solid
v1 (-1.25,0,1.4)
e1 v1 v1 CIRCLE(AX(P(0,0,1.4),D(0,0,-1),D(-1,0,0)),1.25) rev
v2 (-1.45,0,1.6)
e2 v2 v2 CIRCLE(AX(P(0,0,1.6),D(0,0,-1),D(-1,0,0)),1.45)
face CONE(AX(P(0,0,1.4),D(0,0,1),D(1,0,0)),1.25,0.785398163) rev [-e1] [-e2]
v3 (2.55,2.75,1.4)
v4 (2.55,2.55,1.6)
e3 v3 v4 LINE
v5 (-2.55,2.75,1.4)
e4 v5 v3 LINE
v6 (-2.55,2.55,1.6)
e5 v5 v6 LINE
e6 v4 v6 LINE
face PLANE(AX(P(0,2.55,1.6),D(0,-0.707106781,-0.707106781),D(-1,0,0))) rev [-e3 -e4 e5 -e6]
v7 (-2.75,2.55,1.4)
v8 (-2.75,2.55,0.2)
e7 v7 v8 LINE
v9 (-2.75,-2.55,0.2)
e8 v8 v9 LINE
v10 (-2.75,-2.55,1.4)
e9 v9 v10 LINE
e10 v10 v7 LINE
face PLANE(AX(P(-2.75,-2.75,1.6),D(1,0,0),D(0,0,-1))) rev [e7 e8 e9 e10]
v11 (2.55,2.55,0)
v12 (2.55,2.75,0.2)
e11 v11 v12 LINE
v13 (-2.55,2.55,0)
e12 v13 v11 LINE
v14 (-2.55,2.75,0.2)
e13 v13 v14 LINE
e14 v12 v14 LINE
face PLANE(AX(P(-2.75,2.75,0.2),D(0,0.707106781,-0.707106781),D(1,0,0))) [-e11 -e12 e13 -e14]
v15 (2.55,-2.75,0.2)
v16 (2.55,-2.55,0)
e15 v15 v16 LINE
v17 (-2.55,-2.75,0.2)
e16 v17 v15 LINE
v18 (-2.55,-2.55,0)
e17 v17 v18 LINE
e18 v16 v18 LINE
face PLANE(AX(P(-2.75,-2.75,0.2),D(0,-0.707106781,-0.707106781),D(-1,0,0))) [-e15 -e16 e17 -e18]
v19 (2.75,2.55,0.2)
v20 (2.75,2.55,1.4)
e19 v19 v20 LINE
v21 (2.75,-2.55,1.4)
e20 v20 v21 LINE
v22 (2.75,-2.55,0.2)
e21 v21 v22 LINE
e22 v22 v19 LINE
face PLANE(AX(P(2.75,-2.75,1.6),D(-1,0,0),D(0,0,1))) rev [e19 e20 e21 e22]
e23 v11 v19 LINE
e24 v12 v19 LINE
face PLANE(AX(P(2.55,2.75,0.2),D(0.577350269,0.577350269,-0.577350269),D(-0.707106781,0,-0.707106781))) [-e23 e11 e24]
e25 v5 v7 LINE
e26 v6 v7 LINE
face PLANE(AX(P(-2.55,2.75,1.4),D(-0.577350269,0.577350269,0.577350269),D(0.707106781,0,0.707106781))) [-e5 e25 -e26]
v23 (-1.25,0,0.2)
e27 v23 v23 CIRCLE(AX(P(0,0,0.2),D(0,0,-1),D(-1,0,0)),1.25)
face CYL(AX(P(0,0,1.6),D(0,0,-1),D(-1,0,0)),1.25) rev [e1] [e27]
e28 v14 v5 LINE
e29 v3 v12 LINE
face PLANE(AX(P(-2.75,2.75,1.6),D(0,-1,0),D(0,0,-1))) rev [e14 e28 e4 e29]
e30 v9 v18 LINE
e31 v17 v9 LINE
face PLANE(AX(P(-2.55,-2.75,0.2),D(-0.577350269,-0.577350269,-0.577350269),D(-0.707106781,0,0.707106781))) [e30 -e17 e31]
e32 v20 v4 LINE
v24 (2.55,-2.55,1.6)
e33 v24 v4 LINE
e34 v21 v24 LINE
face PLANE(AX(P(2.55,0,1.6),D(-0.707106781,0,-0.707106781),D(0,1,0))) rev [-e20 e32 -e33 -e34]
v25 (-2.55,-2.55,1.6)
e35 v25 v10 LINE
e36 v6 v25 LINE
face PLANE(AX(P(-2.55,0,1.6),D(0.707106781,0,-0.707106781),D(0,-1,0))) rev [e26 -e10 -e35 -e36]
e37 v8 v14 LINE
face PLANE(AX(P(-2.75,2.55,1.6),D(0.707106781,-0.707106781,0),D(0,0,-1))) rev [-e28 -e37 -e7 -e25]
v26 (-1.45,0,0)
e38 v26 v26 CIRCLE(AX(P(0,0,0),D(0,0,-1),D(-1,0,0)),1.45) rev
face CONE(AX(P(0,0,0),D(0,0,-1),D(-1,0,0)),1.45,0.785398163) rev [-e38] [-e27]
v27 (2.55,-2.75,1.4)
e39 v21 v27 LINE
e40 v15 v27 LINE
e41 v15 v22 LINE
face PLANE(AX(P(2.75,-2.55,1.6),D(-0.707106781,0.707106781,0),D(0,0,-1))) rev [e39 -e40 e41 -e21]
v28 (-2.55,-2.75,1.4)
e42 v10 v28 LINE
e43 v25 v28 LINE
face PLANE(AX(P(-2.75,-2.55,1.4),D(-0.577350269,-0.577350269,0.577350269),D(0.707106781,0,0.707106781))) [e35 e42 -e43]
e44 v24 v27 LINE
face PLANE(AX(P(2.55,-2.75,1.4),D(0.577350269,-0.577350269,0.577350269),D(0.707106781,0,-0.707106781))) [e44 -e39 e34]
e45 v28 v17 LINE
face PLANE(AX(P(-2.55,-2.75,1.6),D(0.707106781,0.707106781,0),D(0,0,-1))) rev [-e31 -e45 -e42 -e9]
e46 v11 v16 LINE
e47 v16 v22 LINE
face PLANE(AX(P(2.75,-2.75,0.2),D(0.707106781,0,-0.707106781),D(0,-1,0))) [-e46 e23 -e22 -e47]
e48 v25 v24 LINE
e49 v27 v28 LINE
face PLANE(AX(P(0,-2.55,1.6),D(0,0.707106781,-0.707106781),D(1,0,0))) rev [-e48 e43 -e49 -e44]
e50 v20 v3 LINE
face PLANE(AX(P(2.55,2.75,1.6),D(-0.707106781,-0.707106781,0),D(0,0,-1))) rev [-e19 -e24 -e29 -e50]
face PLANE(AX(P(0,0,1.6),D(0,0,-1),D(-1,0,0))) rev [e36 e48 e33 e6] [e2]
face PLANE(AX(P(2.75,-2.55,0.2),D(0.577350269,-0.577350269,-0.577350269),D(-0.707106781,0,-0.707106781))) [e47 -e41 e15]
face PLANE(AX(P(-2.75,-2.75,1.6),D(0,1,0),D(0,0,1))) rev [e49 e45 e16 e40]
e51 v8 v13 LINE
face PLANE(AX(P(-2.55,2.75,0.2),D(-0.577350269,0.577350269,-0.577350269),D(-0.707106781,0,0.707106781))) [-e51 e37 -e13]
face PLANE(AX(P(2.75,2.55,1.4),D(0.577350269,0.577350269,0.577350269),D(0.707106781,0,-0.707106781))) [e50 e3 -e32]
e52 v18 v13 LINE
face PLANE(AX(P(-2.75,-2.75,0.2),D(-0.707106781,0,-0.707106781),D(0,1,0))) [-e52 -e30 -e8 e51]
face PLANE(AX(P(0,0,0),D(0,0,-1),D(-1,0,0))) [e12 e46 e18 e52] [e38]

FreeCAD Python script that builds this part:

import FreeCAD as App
import Part
import Sketcher
from FreeCAD import Vector
Q = App.Units.Quantity


def add_polygon(sketch, points):
    """Adds a closed chain of lines whose ends are joined by coincident constraints."""
    first, n = sketch.GeometryCount, len(points)
    for a, b in zip(points, points[1:] + points[:1]):
        sketch.addGeometry(Part.LineSegment(App.Vector(*a, 0), App.Vector(*b, 0)), False)
    for i in range(n):
        sketch.addConstraint(Sketcher.Constraint("Coincident", first + i, 2, first + (i + 1) % n, 1))

doc = App.newDocument("Part")
params = doc.addObject("Spreadsheet::Sheet", "Params")
for row, (alias, value) in enumerate([
    ("sketch1_diameter", "2.5 mm"),
    ("sketch1_width", "5.5 mm"),
    ("pad1_length", "1.6 mm"),
    ("chamfer_size", "0.2 mm"),
], start=1):
    params.set(f"A{row}", alias)
    params.set(f"B{row}", "=" + value)
    params.setAlias(f"B{row}", alias)

body = doc.addObject("PartDesign::Body", "Body")

sketch1 = doc.addObject("Sketcher::SketchObject", "Sketch")
body.addObject(sketch1)
sketch1.AttachmentSupport = (doc.XY_Plane, [""])
sketch1.MapMode = "FlatFace"
add_polygon(sketch1, [(-2.8, 2.8), (-2.8, -2.8), (2.8, -2.8), (2.8, 2.8)])
sketch1.addGeometry(Part.Circle(Vector(0, 0, 0), Vector(0, 0, 1), 1.2), False)
sketch1.addConstraint([
    Sketcher.Constraint("Vertical", 0),
    Sketcher.Constraint("Horizontal", 1),
    Sketcher.Constraint("Vertical", 2),
    Sketcher.Constraint("Horizontal", 3),
    Sketcher.Constraint("Coincident", 4, 3, -1, 1),
    Sketcher.Constraint("Symmetric", 0, 2, 2, 2, -1, 1),
    Sketcher.Constraint("Equal", 3, 0),
    Sketcher.Constraint("Diameter", 4, Q("2.5 mm")),
    Sketcher.Constraint("DistanceX", 1, 1, 1, 2, Q("5.5 mm")),
])
sketch1.setExpression("Constraints[11]", "Params.sketch1_diameter")
sketch1.setExpression("Constraints[12]", "Params.sketch1_width")
pad1 = doc.addObject("PartDesign::Pad", "Pad")
body.addObject(pad1)
pad1.Profile = sketch1
pad1.setExpression("Length", "Params.pad1_length")
doc.recompute()

chamfer = doc.addObject("PartDesign::Chamfer", "Chamfer")
body.addObject(chamfer)
chamfer.Base = (pad1, ["Edge1"])
chamfer.UseAllEdges = True
chamfer.setExpression("Size", "Params.chamfer_size")

doc.recompute()
